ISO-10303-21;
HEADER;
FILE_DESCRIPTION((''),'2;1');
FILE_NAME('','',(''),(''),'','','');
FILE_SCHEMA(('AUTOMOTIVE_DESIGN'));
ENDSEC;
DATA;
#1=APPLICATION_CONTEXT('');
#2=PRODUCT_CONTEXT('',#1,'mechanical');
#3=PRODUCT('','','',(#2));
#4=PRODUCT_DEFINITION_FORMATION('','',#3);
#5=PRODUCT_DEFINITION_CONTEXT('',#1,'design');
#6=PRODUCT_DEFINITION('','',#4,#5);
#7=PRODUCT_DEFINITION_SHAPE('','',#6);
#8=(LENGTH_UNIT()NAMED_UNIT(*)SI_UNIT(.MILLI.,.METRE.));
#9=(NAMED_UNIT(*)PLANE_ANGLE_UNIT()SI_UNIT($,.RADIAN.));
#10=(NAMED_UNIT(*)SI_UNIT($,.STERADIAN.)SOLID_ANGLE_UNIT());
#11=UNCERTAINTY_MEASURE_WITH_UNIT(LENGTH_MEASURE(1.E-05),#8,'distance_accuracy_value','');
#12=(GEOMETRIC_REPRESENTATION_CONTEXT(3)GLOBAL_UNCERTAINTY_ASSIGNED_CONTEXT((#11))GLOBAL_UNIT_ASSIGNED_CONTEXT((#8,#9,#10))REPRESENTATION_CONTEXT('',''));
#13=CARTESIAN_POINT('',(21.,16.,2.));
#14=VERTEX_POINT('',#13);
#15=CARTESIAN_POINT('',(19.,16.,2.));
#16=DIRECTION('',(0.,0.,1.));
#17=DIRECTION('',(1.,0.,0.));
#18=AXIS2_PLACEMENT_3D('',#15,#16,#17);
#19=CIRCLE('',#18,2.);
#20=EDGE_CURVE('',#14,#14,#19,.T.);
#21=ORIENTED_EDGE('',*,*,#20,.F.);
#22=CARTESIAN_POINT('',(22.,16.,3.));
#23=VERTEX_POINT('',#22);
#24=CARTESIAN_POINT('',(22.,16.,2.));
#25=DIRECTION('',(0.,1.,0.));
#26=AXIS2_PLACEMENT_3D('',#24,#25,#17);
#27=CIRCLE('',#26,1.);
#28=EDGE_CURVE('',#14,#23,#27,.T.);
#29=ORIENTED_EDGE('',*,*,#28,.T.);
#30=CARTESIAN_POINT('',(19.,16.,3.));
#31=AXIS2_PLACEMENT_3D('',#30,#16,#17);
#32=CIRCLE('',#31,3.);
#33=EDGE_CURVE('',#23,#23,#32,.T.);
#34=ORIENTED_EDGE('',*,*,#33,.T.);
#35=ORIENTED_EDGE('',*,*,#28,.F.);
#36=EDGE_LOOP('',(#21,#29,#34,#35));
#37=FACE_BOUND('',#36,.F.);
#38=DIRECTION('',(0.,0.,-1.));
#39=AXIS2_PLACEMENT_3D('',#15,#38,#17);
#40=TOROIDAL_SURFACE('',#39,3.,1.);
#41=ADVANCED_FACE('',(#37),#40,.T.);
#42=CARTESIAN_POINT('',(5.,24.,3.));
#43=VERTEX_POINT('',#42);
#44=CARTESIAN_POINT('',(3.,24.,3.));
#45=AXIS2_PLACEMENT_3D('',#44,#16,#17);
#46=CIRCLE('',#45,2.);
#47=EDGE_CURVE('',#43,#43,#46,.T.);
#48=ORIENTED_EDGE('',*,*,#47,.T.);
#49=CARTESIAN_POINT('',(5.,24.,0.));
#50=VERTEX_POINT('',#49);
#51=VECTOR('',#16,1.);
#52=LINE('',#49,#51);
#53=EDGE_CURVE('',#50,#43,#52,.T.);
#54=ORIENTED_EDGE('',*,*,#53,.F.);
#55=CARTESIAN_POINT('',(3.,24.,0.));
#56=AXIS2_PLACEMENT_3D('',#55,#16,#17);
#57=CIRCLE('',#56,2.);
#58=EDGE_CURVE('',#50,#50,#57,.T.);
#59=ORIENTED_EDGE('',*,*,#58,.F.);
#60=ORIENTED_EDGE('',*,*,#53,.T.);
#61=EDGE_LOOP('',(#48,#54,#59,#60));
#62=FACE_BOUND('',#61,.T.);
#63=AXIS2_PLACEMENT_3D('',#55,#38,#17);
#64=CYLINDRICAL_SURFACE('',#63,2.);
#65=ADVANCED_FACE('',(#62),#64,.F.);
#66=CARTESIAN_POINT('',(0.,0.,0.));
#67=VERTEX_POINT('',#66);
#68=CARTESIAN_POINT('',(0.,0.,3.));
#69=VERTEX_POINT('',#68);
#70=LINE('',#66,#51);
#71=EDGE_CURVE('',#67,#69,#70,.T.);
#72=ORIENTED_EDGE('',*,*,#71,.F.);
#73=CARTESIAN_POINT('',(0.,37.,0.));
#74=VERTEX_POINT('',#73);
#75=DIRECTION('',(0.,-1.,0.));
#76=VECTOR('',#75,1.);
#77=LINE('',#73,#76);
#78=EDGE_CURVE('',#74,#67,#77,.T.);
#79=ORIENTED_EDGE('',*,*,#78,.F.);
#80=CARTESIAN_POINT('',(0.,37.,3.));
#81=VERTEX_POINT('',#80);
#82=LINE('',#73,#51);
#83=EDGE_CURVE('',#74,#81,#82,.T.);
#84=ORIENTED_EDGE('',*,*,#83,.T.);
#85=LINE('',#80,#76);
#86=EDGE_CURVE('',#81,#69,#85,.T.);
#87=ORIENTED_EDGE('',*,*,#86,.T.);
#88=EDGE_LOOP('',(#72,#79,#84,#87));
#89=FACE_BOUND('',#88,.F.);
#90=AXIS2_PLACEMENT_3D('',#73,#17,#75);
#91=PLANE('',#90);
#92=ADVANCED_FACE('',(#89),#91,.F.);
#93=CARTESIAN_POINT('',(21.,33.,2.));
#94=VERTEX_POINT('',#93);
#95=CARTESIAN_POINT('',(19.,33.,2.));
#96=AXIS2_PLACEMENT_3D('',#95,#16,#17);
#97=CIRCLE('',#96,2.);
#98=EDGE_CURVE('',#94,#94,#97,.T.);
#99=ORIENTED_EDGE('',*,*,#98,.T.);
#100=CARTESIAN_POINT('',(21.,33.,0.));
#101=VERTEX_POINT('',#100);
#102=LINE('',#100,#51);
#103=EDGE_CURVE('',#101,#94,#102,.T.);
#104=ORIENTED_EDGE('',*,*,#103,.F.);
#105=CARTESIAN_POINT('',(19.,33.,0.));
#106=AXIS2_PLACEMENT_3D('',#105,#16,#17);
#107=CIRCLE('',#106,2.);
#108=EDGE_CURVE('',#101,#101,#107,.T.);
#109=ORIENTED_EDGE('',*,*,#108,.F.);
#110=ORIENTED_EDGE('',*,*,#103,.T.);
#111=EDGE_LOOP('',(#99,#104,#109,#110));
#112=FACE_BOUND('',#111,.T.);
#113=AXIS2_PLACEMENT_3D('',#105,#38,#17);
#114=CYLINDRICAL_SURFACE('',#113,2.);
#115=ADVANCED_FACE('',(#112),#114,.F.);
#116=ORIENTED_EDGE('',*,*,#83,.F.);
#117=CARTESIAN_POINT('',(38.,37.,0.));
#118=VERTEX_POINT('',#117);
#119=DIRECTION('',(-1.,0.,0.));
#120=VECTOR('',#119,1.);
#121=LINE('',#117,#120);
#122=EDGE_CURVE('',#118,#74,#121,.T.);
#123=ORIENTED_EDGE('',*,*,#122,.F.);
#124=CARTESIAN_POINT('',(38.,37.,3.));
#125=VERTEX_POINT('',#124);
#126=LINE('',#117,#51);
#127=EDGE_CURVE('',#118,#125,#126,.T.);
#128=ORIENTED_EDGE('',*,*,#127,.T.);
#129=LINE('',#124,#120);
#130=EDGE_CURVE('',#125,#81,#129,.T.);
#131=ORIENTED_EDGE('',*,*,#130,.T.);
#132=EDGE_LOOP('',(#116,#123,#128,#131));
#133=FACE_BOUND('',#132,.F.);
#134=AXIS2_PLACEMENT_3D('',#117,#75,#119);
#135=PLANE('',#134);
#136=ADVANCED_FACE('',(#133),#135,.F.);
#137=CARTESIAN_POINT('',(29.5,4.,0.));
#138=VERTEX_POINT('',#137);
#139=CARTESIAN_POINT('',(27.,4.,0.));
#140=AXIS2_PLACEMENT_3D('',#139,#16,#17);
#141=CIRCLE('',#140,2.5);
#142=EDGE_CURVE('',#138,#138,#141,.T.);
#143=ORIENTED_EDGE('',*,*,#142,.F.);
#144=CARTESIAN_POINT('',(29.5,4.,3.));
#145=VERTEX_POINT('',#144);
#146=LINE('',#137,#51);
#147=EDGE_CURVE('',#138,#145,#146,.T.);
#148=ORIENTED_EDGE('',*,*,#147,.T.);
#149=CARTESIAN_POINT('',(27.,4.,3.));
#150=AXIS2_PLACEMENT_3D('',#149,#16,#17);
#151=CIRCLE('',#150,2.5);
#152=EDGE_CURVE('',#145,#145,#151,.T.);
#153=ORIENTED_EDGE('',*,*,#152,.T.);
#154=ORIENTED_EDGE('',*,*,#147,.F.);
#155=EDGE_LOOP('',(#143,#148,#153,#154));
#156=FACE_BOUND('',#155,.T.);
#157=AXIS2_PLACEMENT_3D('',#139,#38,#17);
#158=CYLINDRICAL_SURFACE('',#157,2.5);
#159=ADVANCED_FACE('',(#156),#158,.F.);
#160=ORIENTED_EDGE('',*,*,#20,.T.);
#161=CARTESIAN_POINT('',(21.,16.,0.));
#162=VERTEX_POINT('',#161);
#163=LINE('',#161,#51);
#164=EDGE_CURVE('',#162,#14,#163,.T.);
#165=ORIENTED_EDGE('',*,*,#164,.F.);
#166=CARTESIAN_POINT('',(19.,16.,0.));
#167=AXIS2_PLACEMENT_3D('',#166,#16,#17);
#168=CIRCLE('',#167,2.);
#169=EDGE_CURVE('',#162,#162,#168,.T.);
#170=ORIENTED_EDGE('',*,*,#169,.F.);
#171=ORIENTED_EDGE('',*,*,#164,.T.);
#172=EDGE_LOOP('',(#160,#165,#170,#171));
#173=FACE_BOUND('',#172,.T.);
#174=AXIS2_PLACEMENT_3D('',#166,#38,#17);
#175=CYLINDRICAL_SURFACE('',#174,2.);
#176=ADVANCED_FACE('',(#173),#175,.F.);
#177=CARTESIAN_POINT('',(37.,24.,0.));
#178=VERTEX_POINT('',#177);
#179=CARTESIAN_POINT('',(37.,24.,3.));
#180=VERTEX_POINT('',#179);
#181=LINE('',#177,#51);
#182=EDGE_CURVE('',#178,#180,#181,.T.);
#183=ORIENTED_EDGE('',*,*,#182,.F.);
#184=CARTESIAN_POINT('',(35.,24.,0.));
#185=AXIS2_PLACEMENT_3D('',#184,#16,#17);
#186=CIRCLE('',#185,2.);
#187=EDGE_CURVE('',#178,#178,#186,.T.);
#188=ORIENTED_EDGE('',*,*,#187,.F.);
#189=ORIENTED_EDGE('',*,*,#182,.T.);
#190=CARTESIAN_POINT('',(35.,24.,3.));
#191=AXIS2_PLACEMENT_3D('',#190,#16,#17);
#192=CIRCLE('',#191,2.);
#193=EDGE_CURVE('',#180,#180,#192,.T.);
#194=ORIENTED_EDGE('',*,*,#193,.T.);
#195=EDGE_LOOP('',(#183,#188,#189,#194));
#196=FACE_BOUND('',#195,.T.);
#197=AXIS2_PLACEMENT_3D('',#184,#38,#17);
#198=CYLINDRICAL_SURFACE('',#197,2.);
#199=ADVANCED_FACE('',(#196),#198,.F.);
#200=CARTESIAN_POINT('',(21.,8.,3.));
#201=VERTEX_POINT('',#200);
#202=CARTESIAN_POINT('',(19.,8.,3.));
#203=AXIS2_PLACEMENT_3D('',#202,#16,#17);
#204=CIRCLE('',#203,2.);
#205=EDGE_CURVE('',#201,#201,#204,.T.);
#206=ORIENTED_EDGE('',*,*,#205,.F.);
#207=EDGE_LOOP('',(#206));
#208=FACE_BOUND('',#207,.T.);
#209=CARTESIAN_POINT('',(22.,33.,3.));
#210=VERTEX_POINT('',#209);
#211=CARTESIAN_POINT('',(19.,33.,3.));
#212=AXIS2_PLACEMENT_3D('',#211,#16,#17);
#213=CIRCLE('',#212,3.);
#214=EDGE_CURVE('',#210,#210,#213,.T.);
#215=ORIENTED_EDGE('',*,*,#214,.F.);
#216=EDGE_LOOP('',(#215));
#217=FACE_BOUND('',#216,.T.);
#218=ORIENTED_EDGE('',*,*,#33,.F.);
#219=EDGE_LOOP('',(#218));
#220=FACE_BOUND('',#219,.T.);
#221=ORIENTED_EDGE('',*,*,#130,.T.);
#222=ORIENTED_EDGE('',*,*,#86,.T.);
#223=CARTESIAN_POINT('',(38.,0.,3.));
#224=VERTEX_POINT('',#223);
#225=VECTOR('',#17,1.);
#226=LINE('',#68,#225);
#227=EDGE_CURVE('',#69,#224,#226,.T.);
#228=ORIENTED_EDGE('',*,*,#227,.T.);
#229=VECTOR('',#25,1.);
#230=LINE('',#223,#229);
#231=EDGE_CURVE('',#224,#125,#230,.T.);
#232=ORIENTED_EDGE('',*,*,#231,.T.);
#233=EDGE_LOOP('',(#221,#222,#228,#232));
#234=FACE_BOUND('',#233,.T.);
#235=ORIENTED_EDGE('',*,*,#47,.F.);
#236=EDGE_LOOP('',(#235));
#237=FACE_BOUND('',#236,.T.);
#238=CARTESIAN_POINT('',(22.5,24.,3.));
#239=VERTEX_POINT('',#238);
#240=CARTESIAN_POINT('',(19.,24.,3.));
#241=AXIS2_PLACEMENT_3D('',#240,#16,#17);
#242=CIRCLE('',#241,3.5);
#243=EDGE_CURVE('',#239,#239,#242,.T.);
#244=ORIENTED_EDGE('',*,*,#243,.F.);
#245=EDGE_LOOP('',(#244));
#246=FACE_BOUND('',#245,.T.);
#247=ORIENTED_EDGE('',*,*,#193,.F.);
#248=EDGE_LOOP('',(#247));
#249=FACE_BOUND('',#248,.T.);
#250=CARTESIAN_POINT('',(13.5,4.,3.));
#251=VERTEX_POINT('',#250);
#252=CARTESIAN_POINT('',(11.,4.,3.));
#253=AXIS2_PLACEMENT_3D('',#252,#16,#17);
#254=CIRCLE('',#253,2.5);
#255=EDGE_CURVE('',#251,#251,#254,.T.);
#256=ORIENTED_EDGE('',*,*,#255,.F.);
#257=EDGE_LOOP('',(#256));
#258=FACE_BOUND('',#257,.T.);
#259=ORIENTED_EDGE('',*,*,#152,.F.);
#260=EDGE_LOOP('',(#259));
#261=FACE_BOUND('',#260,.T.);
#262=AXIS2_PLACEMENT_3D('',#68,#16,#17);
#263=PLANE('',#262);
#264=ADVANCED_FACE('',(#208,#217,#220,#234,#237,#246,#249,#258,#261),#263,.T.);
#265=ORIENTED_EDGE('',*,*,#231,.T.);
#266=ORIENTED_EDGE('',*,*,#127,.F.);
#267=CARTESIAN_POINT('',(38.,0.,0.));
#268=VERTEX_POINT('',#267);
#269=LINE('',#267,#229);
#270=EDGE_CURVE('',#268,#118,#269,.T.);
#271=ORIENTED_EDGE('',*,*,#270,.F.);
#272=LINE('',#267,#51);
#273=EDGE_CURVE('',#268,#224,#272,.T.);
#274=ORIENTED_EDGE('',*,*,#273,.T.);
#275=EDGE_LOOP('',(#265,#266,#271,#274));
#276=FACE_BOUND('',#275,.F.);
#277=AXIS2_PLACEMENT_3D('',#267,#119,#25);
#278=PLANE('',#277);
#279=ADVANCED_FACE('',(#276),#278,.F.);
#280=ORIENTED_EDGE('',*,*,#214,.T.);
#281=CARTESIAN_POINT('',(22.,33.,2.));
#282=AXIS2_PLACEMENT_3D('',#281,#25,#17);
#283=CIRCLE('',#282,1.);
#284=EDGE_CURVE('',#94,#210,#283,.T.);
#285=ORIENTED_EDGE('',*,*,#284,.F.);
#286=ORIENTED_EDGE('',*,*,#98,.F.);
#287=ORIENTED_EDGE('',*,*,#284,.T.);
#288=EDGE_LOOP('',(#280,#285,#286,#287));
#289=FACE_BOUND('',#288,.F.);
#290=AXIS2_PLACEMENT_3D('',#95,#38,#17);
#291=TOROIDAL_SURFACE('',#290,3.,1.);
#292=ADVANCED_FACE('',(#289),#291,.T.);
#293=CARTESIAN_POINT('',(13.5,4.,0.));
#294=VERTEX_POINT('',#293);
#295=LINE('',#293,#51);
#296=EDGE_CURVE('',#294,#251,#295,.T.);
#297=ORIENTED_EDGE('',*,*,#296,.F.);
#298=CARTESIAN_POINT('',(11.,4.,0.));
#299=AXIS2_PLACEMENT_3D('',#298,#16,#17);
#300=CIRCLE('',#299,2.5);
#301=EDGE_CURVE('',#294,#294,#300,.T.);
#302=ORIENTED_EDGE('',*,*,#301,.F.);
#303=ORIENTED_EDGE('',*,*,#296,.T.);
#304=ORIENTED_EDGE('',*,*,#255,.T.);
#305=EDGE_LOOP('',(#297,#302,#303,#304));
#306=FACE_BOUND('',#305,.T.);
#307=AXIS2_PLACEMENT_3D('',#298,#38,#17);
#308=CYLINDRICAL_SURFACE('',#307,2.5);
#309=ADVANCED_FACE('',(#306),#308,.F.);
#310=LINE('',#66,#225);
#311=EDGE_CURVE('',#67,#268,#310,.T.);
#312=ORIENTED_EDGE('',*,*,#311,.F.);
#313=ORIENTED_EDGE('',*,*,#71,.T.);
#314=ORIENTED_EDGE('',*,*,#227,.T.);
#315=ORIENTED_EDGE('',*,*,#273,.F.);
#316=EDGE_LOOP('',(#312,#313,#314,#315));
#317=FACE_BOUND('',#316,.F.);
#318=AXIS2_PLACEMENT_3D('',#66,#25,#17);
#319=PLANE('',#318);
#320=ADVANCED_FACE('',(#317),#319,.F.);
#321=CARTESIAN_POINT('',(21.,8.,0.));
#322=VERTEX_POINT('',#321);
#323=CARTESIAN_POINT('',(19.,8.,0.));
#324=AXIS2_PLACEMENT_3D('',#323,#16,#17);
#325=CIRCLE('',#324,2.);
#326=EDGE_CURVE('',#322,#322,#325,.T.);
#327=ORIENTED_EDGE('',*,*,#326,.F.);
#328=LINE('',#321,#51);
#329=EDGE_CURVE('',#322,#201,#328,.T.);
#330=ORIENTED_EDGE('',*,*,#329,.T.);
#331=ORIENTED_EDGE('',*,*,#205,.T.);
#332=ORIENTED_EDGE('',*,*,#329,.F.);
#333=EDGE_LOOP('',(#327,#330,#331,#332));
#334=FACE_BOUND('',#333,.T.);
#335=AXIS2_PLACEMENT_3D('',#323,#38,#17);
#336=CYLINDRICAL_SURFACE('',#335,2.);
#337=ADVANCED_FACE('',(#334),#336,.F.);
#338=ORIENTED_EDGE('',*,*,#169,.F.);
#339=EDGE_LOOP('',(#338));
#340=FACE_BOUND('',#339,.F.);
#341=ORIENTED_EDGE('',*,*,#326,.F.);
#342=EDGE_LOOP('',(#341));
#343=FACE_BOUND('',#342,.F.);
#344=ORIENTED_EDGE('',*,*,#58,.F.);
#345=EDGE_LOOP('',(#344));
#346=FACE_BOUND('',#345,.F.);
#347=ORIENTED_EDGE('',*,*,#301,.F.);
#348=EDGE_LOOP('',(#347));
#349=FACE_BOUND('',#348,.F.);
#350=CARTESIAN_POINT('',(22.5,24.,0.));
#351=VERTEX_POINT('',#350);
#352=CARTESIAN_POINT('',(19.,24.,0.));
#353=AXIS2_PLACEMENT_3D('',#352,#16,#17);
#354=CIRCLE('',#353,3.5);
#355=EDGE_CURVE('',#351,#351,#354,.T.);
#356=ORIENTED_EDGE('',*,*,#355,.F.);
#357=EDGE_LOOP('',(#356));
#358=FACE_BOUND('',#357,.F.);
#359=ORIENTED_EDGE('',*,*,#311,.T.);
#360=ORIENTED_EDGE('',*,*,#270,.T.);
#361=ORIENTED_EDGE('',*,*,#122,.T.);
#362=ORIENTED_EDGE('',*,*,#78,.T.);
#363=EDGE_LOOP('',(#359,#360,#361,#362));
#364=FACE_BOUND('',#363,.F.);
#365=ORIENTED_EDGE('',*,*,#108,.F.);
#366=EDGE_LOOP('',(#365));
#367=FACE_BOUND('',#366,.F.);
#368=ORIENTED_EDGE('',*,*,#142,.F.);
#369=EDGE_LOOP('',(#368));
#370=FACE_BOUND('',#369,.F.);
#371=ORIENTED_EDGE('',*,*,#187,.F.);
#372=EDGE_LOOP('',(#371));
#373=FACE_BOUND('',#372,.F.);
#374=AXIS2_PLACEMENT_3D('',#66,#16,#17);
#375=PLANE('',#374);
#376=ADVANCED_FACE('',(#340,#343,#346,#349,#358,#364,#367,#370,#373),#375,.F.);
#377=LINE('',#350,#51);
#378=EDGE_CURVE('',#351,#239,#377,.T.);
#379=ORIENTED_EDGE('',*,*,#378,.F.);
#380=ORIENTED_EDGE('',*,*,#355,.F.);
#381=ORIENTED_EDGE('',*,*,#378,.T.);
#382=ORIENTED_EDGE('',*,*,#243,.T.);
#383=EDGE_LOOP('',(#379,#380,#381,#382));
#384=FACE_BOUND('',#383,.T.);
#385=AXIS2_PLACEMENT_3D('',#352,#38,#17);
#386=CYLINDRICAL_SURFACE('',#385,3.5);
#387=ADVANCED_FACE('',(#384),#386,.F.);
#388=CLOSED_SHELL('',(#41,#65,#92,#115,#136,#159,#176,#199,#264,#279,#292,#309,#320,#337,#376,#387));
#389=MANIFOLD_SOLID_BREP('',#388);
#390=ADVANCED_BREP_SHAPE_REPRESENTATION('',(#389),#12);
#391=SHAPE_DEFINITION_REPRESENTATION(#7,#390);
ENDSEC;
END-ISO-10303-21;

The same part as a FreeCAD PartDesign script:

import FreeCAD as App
import Part
import Sketcher
from FreeCAD import Vector
Q = App.Units.Quantity


def edges_at(feature, points):
    """Names of the edges that pass closest to the given points."""
    edges = feature.Shape.Edges
    near = lambda p: min(range(len(edges)), key=lambda i: edges[i].distToShape(Part.Vertex(*p))[0])
    return sorted({f"Edge{near(p) + 1}" for p in points})


def add_polygon(sketch, points):
    """Adds a closed chain of lines whose ends are joined by coincident constraints."""
    first, n = sketch.GeometryCount, len(points)
    for a, b in zip(points, points[1:] + points[:1]):
        sketch.addGeometry(Part.LineSegment(App.Vector(*a, 0), App.Vector(*b, 0)), False)
    for i in range(n):
        sketch.addConstraint(Sketcher.Constraint("Coincident", first + i, 2, first + (i + 1) % n, 1))

doc = App.newDocument("Part")
body = doc.addObject("PartDesign::Body", "Body")

# Sketch on XY plane
sketch1 = body.newObject("Sketcher::SketchObject", "Sketch")
sketch1.AttachmentSupport = (doc.getObject("XY_Plane"), [""])
sketch1.MapMode = "FlatFace"
add_polygon(sketch1, [(0, 37), (0, 0), (38, 0), (38, 37)])  # lines 0-3
sketch1.addGeometry(Part.Circle(Vector(11, 4, 0), Vector(0, 0, 1), 2.5), False)  # 4
sketch1.addGeometry(Part.Circle(Vector(27, 4, 0), Vector(0, 0, 1), 2.5), False)  # 5
sketch1.addGeometry(Part.Circle(Vector(19, 8, 0), Vector(0, 0, 1), 2), False)  # 6
sketch1.addGeometry(Part.Circle(Vector(19, 16, 0), Vector(0, 0, 1), 2), False)  # 7
sketch1.addGeometry(Part.Circle(Vector(3, 24, 0), Vector(0, 0, 1), 2), False)  # 8
sketch1.addGeometry(Part.Circle(Vector(19, 24, 0), Vector(0, 0, 1), 3.5), False)  # 9
sketch1.addGeometry(Part.Circle(Vector(35, 24, 0), Vector(0, 0, 1), 2), False)  # 10
sketch1.addGeometry(Part.Circle(Vector(19, 33, 0), Vector(0, 0, 1), 2), False)  # 11
sketch1.addConstraint([
    Sketcher.Constraint("Vertical", 0),
    Sketcher.Constraint("Horizontal", 1),
    Sketcher.Constraint("Vertical", 2),
    Sketcher.Constraint("Horizontal", 3),
    Sketcher.Constraint("Coincident", 0, 2, -1, 1),
    Sketcher.Constraint("Equal", 4, 5),
    Sketcher.Constraint("Equal", 6, 7),
    Sketcher.Constraint("Equal", 7, 8),
    Sketcher.Constraint("Equal", 8, 10),
    Sketcher.Constraint("Equal", 10, 11),
    Sketcher.Constraint("Horizontal", 4, 3, 5, 3),
    Sketcher.Constraint("Horizontal", 8, 3, 9, 3),
    Sketcher.Constraint("Horizontal", 9, 3, 10, 3),
    Sketcher.Constraint("Vertical", 6, 3, 7, 3),
    Sketcher.Constraint("Vertical", 7, 3, 9, 3),
    Sketcher.Constraint("Vertical", 9, 3, 11, 3),
    Sketcher.Constraint("Diameter", 4, Q("5 mm")),
    Sketcher.Constraint("Diameter", 6, Q("4 mm")),
    Sketcher.Constraint("Diameter", 9, Q("7 mm")),
    Sketcher.Constraint("DistanceX", 1, 1, 1, 2, Q("38 mm")),
    Sketcher.Constraint("DistanceY", 0, 2, 0, 1, Q("37 mm")),
    Sketcher.Constraint("DistanceY", -1, 1, 4, 3, Q("4 mm")),
    Sketcher.Constraint("DistanceY", -1, 1, 6, 3, Q("8 mm")),
    Sketcher.Constraint("DistanceY", -1, 1, 7, 3, Q("16 mm")),
    Sketcher.Constraint("DistanceX", -1, 1, 8, 3, Q("3 mm")),
    Sketcher.Constraint("DistanceY", -1, 1, 8, 3, Q("24 mm")),
    Sketcher.Constraint("DistanceX", 4, 3, 5, 3, Q("16 mm")),
    Sketcher.Constraint("DistanceX", 4, 3, 6, 3, Q("8 mm")),
    Sketcher.Constraint("DistanceX", 8, 3, 7, 3, Q("16 mm")),
    Sketcher.Constraint("DistanceX", 9, 3, 10, 3, Q("16 mm")),
    Sketcher.Constraint("DistanceY", 7, 3, 11, 3, Q("17 mm")),
])
pad1 = body.newObject("PartDesign::Pad", "Pad")
pad1.Profile = sketch1
pad1.Length = 3
doc.recompute()

fillet = body.newObject("PartDesign::Fillet", "Fillet")
fillet.Base = (pad1, edges_at(pad1, [(17, 33, 3), (17, 16, 3)]))
fillet.Radius = 1

doc.recompute()
